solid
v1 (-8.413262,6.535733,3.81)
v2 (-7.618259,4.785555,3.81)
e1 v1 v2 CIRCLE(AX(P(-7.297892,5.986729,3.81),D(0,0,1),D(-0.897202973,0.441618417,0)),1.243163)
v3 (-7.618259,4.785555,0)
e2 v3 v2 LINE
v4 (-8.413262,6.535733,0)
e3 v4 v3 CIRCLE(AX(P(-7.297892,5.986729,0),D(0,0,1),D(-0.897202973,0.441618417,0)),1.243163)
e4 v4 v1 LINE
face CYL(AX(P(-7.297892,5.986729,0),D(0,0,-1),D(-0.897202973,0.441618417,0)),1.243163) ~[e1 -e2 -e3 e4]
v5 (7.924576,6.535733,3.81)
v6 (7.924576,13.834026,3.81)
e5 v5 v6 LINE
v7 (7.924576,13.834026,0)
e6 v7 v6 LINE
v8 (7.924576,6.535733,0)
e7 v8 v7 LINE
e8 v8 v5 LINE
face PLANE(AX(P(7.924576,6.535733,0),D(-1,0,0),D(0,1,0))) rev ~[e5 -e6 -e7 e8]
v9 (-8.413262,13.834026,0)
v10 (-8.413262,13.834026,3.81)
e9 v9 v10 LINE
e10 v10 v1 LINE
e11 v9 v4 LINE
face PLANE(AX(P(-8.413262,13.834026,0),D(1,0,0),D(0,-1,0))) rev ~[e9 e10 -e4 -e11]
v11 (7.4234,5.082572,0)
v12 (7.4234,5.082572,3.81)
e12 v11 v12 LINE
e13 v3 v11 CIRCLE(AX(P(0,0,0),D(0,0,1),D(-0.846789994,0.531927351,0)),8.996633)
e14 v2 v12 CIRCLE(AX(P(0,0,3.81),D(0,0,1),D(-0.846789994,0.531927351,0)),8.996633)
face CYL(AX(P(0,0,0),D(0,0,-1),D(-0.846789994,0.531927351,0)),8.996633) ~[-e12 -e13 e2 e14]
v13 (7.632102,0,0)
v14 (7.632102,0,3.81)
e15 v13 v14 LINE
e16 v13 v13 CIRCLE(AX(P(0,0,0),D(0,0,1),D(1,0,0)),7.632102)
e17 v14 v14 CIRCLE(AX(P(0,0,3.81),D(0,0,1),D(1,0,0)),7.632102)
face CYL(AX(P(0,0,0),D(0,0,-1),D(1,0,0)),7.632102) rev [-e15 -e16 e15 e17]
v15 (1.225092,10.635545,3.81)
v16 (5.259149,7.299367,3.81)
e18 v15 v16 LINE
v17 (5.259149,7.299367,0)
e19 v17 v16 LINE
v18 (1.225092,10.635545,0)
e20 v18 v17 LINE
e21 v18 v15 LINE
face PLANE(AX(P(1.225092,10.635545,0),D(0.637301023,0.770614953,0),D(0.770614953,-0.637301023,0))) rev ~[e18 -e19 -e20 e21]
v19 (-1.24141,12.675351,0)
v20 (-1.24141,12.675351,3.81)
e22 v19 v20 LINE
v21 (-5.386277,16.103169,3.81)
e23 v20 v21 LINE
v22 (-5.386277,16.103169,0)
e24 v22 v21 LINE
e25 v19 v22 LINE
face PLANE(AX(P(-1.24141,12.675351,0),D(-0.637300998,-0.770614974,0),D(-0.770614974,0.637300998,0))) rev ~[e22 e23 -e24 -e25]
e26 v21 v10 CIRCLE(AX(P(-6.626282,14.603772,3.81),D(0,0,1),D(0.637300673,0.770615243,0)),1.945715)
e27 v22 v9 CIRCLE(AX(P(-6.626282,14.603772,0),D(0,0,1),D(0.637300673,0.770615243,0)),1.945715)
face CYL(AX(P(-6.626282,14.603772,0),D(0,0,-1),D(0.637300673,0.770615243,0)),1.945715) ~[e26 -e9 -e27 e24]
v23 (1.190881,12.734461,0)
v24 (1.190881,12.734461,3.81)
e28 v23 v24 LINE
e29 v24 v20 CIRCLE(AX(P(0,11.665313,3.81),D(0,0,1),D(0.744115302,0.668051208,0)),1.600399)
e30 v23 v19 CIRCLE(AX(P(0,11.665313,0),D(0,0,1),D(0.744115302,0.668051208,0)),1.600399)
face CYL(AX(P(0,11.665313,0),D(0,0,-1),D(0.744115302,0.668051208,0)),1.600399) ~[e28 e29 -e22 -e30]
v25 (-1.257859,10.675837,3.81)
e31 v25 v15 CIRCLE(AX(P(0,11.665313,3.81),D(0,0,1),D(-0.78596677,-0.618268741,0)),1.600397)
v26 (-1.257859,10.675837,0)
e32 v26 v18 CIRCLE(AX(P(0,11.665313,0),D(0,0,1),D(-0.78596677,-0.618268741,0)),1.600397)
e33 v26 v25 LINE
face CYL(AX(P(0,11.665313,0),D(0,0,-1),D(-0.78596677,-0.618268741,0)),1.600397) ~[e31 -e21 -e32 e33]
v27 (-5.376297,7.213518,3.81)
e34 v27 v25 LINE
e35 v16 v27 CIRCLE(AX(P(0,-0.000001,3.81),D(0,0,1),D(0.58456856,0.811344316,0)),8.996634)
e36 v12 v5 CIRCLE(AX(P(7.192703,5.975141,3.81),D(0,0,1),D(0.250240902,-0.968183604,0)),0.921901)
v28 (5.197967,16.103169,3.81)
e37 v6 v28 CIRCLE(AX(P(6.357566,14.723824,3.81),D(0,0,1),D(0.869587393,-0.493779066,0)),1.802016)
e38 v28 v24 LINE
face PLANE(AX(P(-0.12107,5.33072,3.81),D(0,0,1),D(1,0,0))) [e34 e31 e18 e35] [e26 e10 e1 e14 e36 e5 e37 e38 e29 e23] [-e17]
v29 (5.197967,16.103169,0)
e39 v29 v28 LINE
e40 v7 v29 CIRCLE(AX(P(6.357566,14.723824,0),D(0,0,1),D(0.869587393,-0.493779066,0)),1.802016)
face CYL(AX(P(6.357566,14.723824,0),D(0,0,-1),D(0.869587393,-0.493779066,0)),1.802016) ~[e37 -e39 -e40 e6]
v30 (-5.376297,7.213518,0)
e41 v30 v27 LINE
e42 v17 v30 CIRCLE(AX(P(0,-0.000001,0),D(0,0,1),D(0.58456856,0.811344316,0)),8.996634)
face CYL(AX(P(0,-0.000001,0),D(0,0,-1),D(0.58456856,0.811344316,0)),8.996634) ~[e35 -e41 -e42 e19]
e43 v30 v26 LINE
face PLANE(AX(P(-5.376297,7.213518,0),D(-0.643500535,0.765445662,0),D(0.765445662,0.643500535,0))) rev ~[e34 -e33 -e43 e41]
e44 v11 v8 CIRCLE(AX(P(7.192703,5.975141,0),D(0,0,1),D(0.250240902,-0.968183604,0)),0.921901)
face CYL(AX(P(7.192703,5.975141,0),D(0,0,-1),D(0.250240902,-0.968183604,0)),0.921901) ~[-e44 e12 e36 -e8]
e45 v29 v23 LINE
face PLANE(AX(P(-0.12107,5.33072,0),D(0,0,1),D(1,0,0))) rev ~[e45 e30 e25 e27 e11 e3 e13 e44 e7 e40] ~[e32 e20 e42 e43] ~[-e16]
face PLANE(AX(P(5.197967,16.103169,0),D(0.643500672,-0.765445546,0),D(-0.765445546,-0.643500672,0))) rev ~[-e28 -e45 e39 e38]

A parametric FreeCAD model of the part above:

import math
import FreeCAD as App
import Part
import Sketcher
from FreeCAD import Vector
Q = App.Units.Quantity

doc = App.newDocument("Part")
body = doc.addObject("PartDesign::Body", "Body")

# Sketch on XY plane
sketch1 = body.newObject("Sketcher::SketchObject", "Sketch")
sketch1.AttachmentSupport = (doc.getObject("XY_Plane"), [""])
sketch1.MapMode = "FlatFace"
sketch1.addGeometry([
    Part.LineSegment(Vector(5.197967, 16.103169, 0), Vector(1.190881, 12.734461, 0)),  # 0
    Part.ArcOfCircle(Part.Circle(Vector(0, 11.665313, 0), Vector(0, 0, 1), 1.600399), math.radians(41.916834), math.radians(140.867444)),  # 1
    Part.LineSegment(Vector(-1.24141, 12.675351, 0), Vector(-5.386277, 16.103169, 0)),  # 2
    Part.ArcOfCircle(Part.Circle(Vector(-6.626282, 14.603772, 0), Vector(0, 0, 1), 1.945715), math.radians(50.409169), math.radians(203.304073)),  # 3
    Part.LineSegment(Vector(-8.413262, 13.834026, 0), Vector(-8.413262, 6.535733, 0)),  # 4
    Part.ArcOfCircle(Part.Circle(Vector(-7.297892, 5.986729, 0), Vector(0, 0, 1), 1.243163), math.radians(153.792812), math.radians(255.066202)),  # 5
    Part.ArcOfCircle(Part.Circle(Vector(0, 0, 0), Vector(0, 0, 1), 8.996633), math.radians(147.864229), math.radians(394.398235)),  # 6
    Part.ArcOfCircle(Part.Circle(Vector(7.192703, 5.975141, 0), Vector(0, 0, 1), 0.921901), math.radians(-75.508232), math.radians(37.450959)),  # 7
    Part.LineSegment(Vector(7.924576, 6.535733, 0), Vector(7.924576, 13.834026, 0)),  # 8
    Part.ArcOfCircle(Part.Circle(Vector(6.357566, 14.723824, 0), Vector(0, 0, 1), 1.802016), math.radians(-29.589273), math.radians(130.053353)),  # 9
    Part.Circle(Vector(0, 0, 0), Vector(0, 0, 1), 7.632102),  # 10
    Part.ArcOfCircle(Part.Circle(Vector(0, 11.665313, 0), Vector(0, 0, 1), 1.600397), math.radians(-141.810181), math.radians(-40.049186)),  # 11
    Part.LineSegment(Vector(1.225092, 10.635545, 0), Vector(5.259149, 7.299367, 0)),  # 12
    Part.ArcOfCircle(Part.Circle(Vector(0, -0.000001, 0), Vector(0, 0, 1), 8.996634), math.radians(54.227483), math.radians(126.697476)),  # 13
    Part.LineSegment(Vector(-5.376297, 7.213518, 0), Vector(-1.257859, 10.675837, 0)),  # 14
], False)
sketch1.addConstraint([
    Sketcher.Constraint("Coincident", 0, 2, 1, 1),
    Sketcher.Constraint("Coincident", 1, 2, 2, 1),
    Sketcher.Constraint("Coincident", 2, 2, 3, 1),
    Sketcher.Constraint("Coincident", 3, 2, 4, 1),
    Sketcher.Constraint("Coincident", 4, 2, 5, 1),
    Sketcher.Constraint("Coincident", 5, 2, 6, 1),
    Sketcher.Constraint("Coincident", 6, 2, 7, 1),
    Sketcher.Constraint("Coincident", 7, 2, 8, 1),
    Sketcher.Constraint("Coincident", 8, 2, 9, 1),
    Sketcher.Constraint("Coincident", 9, 2, 0, 1),
    Sketcher.Constraint("Coincident", 11, 2, 12, 1),
    Sketcher.Constraint("Coincident", 12, 2, 13, 1),
    Sketcher.Constraint("Coincident", 13, 2, 14, 1),
    Sketcher.Constraint("Coincident", 14, 2, 11, 1),
    Sketcher.Constraint("Vertical", 4),
    Sketcher.Constraint("Vertical", 8),
    Sketcher.Constraint("Coincident", 6, 3, -1, 1),
    Sketcher.Constraint("Coincident", 10, 3, -1, 1),
    Sketcher.Constraint("Coincident", 13, 3, -1, 1),
    Sketcher.Constraint("Coincident", 11, 3, 1, 3),
    Sketcher.Constraint("PointOnObject", 1, 3, -2),
    Sketcher.Constraint("Radius", 1, Q("1.600399 mm")),
    Sketcher.Constraint("Radius", 7, Q("0.921901 mm")),
    Sketcher.Constraint("Diameter", 10, Q("15.264204 mm")),
    Sketcher.Constraint("Radius", 3, Q("1.945715 mm")),
    Sketcher.Constraint("Radius", 5, Q("1.243163 mm")),
    Sketcher.Constraint("Radius", 6, Q("8.996633 mm")),
    Sketcher.Constraint("Radius", 9, Q("1.802016 mm")),
    Sketcher.Constraint("Radius", 11, Q("1.600397 mm")),
    Sketcher.Constraint("Radius", 13, Q("8.996634 mm")),
    Sketcher.Constraint("DistanceX", -1, 1, 6, 2, Q("7.4234 mm")),
    Sketcher.Constraint("DistanceX", 9, 2, 9, 3, Q("1.159599 mm")),
    Sketcher.Constraint("DistanceX", 1, 2, 11, 2, Q("2.466502 mm")),
    Sketcher.Constraint("Distance", 0, Q("5.234972 mm")),
    Sketcher.Constraint("Distance", 2, Q("5.378648 mm")),
    Sketcher.Constraint("DistanceY", 4, 2, 4, 1, Q("7.298293 mm")),
    Sketcher.Constraint("DistanceY", 8, 1, 8, 2, Q("7.298293 mm")),
    Sketcher.Constraint("DistanceY", -1, 1, 3, 3, Q("14.603772 mm")),
    Sketcher.Constraint("DistanceY", -1, 1, 5, 3, Q("5.986729 mm")),
    Sketcher.Constraint("DistanceY", -1, 1, 7, 3, Q("5.975141 mm")),
    Sketcher.Constraint("DistanceX", -1, 1, 0, 2, Q("1.190881 mm")),
    Sketcher.Constraint("DistanceY", -1, 1, 0, 2, Q("12.734461 mm")),
    Sketcher.Constraint("DistanceX", 1, 2, -1, 1, Q("1.24141 mm")),
    Sketcher.Constraint("DistanceY", -1, 1, 2, 2, Q("16.103169 mm")),
    Sketcher.Constraint("DistanceX", 5, 2, -1, 1, Q("7.618259 mm")),
    Sketcher.Constraint("DistanceY", -1, 1, 9, 2, Q("16.103169 mm")),
    Sketcher.Constraint("DistanceX", -1, 1, 12, 2, Q("5.259149 mm")),
    Sketcher.Constraint("DistanceX", 14, 2, -1, 1, Q("1.257859 mm")),
    Sketcher.Constraint("DistanceY", 5, 3, 13, 2, Q("1.226789 mm")),
])
pad1 = body.newObject("PartDesign::Pad", "Pad")
pad1.Profile = sketch1
pad1.Length = Q("0.15 in")

doc.recompute()
